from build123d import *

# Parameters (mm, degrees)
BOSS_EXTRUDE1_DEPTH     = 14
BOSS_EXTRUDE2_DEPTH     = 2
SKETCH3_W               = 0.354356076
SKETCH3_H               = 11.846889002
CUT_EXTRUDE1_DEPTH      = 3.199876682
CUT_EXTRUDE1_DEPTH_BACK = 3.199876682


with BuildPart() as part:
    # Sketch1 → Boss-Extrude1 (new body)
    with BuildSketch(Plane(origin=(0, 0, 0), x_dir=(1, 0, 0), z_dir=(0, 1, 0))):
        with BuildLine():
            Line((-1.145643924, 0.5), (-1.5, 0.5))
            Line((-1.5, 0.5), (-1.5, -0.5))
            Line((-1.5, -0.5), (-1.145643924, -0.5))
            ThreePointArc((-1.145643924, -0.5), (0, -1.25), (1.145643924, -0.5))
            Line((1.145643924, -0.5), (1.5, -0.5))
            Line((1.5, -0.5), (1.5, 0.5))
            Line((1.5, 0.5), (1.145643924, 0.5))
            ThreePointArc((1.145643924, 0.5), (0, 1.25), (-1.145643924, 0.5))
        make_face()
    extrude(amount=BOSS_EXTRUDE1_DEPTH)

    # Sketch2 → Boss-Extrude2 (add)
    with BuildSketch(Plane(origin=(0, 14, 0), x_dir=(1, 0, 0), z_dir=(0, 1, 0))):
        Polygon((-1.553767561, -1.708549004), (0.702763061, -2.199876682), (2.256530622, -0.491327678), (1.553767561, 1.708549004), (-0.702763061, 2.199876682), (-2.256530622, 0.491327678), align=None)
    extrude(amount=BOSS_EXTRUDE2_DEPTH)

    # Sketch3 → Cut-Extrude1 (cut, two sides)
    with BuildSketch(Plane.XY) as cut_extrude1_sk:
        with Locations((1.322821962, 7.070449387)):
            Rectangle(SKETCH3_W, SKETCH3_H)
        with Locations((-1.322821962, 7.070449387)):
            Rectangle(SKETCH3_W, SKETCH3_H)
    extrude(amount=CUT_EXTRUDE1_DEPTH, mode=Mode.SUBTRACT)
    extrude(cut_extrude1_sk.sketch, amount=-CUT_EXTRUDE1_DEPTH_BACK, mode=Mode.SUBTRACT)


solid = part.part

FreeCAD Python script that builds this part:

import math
import FreeCAD as App
import Part
import Sketcher
from FreeCAD import Vector
Q = App.Units.Quantity


def add_polygon(sketch, points):
    """Adds a closed chain of lines whose ends are joined by coincident constraints."""
    first, n = sketch.GeometryCount, len(points)
    for a, b in zip(points, points[1:] + points[:1]):
        sketch.addGeometry(Part.LineSegment(App.Vector(*a, 0), App.Vector(*b, 0)), False)
    for i in range(n):
        sketch.addConstraint(Sketcher.Constraint("Coincident", first + i, 2, first + (i + 1) % n, 1))

doc = App.newDocument("Part")
body = doc.addObject("PartDesign::Body", "Body")

# Sketch on XZ plane
sketch1 = body.newObject("Sketcher::SketchObject", "Sketch")
sketch1.AttachmentSupport = (doc.getObject("XZ_Plane"), [""])
sketch1.MapMode = "FlatFace"
sketch1.addGeometry([
    Part.LineSegment(Vector(-1.15, -0.5, 0), Vector(-1.5, -0.5, 0)),  # 0
    Part.LineSegment(Vector(-1.5, -0.5, 0), Vector(-1.5, 0.5, 0)),  # 1
    Part.LineSegment(Vector(-1.5, 0.5, 0), Vector(-1.15, 0.5, 0)),  # 2
    Part.ArcOfCircle(Part.Circle(Vector(0, 0, 0), Vector(0, 0, 1), 1.25), math.radians(24), math.radians(156)),  # 3
    Part.LineSegment(Vector(1.15, 0.5, 0), Vector(1.5, 0.5, 0)),  # 4
    Part.LineSegment(Vector(1.5, 0.5, 0), Vector(1.5, -0.5, 0)),  # 5
    Part.LineSegment(Vector(1.5, -0.5, 0), Vector(1.15, -0.5, 0)),  # 6
    Part.ArcOfCircle(Part.Circle(Vector(0, 0, 0), Vector(0, 0, 1), 1.25), math.radians(-156), math.radians(-24)),  # 7
], False)
sketch1.addConstraint([
    Sketcher.Constraint("Coincident", 0, 2, 1, 1),
    Sketcher.Constraint("Coincident", 1, 2, 2, 1),
    Sketcher.Constraint("Coincident", 2, 2, 3, 2),
    Sketcher.Constraint("Coincident", 3, 1, 4, 1),
    Sketcher.Constraint("Coincident", 4, 2, 5, 1),
    Sketcher.Constraint("Coincident", 5, 2, 6, 1),
    Sketcher.Constraint("Coincident", 6, 2, 7, 2),
    Sketcher.Constraint("Coincident", 7, 1, 0, 1),
    Sketcher.Constraint("Horizontal", 0),
    Sketcher.Constraint("Vertical", 1),
    Sketcher.Constraint("Horizontal", 2),
    Sketcher.Constraint("Horizontal", 4),
    Sketcher.Constraint("Vertical", 5),
    Sketcher.Constraint("Horizontal", 6),
    Sketcher.Constraint("Coincident", 3, 3, -1, 1),
    Sketcher.Constraint("Coincident", 7, 3, -1, 1),
    Sketcher.Constraint("Equal", 3, 7),
    Sketcher.Constraint("Symmetric", 0, 2, 4, 2, -1, 1),
    Sketcher.Constraint("Horizontal", 2, 2, 3, 1),
    Sketcher.Constraint("Horizontal", 0, 2, 5, 2),
    Sketcher.Constraint("DistanceY", 1, 1, 1, 2, Q("1 mm")),
    Sketcher.Constraint("Radius", 3, Q("1.25 mm")),
    Sketcher.Constraint("DistanceX", 1, 2, 4, 2, Q("3 mm")),
])
pad1 = body.newObject("PartDesign::Pad", "Pad")
pad1.Profile = sketch1
pad1.Length = 14
pad1.Reversed = True

# Sketch on XZ plane
sketch2 = body.newObject("Sketcher::SketchObject", "Sketch001")
sketch2.AttachmentSupport = (doc.getObject("XZ_Plane"), [""])
sketch2.MapMode = "FlatFace"
sketch2.AttachmentOffset = App.Placement(Vector(0, 0, -14), App.Rotation())
add_polygon(sketch2, [(-1.6, 1.7), (0.7, 2.2), (2.3, 0.5), (1.6, -1.7), (-0.7, -2.2), (-2.3, -0.5)])  # lines 0-5
sketch2.addConstraint([
    Sketcher.Constraint("Symmetric", 0, 2, 3, 2, -1, 1),
    Sketcher.Constraint("Symmetric", 1, 2, 4, 2, -1, 1),
    Sketcher.Constraint("Symmetric", 2, 2, 5, 2, -1, 1),
    Sketcher.Constraint("Equal", 0, 1),
    Sketcher.Constraint("Equal", 1, 2),
    Sketcher.Constraint("Distance", 0, Q("2.309401 mm")),
    Sketcher.Constraint("DistanceX", 4, 2, 2, 2, Q("3.810298 mm")),
    Sketcher.Constraint("DistanceY", 2, 2, 5, 2, Q("3.417098 mm")),
    Sketcher.Constraint("DistanceX", -1, 1, 1, 2, Q("2.256531 mm")),
])
pad2 = body.newObject("PartDesign::Pad", "Pad001")
pad2.Profile = sketch2
pad2.Length = 2
pad2.Reversed = True

# Sketch on XY plane
sketch3 = body.newObject("Sketcher::SketchObject", "Sketch002")
sketch3.AttachmentSupport = (doc.getObject("XY_Plane"), [""])
sketch3.MapMode = "FlatFace"
add_polygon(sketch3, [(1.15, 12.99), (1.15, 1.15), (1.5, 1.15), (1.5, 12.99)])  # lines 0-3
add_polygon(sketch3, [(-1.5, 12.99), (-1.5, 1.15), (-1.15, 1.15), (-1.15, 12.99)])  # lines 4-7
sketch3.addConstraint([
    Sketcher.Constraint("Vertical", 0),
    Sketcher.Constraint("Horizontal", 1),
    Sketcher.Constraint("Vertical", 2),
    Sketcher.Constraint("Horizontal", 3),
    Sketcher.Constraint("Vertical", 4),
    Sketcher.Constraint("Horizontal", 5),
    Sketcher.Constraint("Vertical", 6),
    Sketcher.Constraint("Horizontal", 7),
    Sketcher.Constraint("Symmetric", 1, 2, 4, 2, -2),
    Sketcher.Constraint("Symmetric", 3, 2, 6, 2, -2),
    Sketcher.Constraint("DistanceX", 4, 2, 1, 2, Q("3 mm")),
    Sketcher.Constraint("DistanceY", 0, 2, 0, 1, Q("11.846889 mm")),
    Sketcher.Constraint("DistanceX", 1, 1, 1, 2, Q("0.354356 mm")),
    Sketcher.Constraint("DistanceY", -1, 1, 0, 2, Q("1.147005 mm")),
])
pocket1 = body.newObject("PartDesign::Pocket", "Pocket")
pocket1.Profile = sketch3
pocket1.Type = "ThroughAll"
pocket1.Midplane = True

doc.recompute()
